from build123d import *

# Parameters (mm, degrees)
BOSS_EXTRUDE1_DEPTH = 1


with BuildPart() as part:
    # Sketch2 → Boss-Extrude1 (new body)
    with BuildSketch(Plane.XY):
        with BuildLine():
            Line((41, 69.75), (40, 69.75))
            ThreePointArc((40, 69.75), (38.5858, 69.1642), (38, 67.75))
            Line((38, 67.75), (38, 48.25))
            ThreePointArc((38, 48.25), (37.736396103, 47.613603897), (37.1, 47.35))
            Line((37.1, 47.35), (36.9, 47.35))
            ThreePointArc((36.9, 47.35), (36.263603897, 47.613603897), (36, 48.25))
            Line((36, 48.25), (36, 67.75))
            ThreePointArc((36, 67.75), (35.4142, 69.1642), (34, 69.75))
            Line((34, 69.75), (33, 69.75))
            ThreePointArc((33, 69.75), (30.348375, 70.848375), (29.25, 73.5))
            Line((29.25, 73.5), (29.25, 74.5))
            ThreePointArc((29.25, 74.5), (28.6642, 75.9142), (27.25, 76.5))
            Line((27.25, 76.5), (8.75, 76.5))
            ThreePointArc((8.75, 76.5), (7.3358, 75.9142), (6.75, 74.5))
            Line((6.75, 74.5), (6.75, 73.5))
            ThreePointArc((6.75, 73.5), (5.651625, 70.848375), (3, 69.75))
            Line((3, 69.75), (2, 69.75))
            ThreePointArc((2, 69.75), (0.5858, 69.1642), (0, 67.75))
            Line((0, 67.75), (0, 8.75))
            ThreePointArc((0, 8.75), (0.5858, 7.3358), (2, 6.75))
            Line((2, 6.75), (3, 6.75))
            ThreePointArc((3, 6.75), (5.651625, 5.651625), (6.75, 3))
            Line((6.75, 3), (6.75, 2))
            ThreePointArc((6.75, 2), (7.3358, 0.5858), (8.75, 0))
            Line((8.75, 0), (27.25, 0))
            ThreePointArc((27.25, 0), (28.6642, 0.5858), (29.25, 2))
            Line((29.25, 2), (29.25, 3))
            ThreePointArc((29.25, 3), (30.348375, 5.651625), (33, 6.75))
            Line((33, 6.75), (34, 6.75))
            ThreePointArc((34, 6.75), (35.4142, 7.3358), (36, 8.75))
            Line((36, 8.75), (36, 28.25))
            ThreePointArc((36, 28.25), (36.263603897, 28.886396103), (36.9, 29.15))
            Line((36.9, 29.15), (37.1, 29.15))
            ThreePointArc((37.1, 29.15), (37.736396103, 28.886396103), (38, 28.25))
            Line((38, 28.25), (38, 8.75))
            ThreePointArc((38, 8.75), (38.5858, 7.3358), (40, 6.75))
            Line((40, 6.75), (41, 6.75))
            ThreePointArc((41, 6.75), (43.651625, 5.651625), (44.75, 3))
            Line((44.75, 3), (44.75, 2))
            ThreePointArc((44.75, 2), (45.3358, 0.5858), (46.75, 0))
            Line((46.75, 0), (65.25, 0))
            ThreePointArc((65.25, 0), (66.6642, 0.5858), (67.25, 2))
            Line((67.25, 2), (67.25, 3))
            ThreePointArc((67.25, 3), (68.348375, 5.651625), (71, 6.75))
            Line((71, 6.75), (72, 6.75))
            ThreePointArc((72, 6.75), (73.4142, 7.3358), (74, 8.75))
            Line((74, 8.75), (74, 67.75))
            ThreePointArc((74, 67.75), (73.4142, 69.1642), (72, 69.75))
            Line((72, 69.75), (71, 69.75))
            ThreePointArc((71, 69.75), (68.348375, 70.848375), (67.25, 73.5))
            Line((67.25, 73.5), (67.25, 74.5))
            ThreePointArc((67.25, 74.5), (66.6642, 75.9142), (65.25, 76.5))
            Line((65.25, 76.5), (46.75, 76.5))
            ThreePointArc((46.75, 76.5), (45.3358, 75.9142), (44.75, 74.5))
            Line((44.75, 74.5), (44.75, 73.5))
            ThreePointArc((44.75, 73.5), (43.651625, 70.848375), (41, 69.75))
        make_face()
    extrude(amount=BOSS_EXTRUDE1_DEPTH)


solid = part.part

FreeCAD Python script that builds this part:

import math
import FreeCAD as App
import Part
import Sketcher

V = App.Vector
Q = App.Units.Quantity

doc = App.newDocument("Part")
params = doc.addObject("Spreadsheet::Sheet", "Params")
for row, (alias, value) in enumerate([
    ("sketch1_radius", "0.9 mm"),
    ("sketch1_width", "1 mm"),
    ("sketch1_height", "59 mm"),
    ("sketch1_width2", "0.2 mm"),
    ("sketch1_width3", "18.5 mm"),
    ("pad1_length", "1 mm"),
], start=1):
    params.set(f"A{row}", alias)
    params.set(f"B{row}", "=" + value)
    params.setAlias(f"B{row}", alias)

body = doc.addObject("PartDesign::Body", "Body")

sketch1 = body.newObject("Sketcher::SketchObject", "Sketch")
sketch1.AttachmentSupport = (doc.getObject("XY_Plane"), [""])
sketch1.MapMode = "FlatFace"
sketch1.addGeometry(Part.LineSegment(V(41, 69.75, 0), V(40, 69.75, 0)), False)
sketch1.addGeometry(Part.ArcOfCircle(Part.Circle(V(40, 67.75, 0), V(0, 0, 1), 2), math.radians(90), math.radians(180)), False)
sketch1.addGeometry(Part.LineSegment(V(38, 67.75, 0), V(38, 48.25, 0)), False)
sketch1.addGeometry(Part.ArcOfCircle(Part.Circle(V(37.1, 48.25, 0), V(0, 0, 1), 0.9), math.radians(-90), math.radians(0)), False)
sketch1.addGeometry(Part.LineSegment(V(37.1, 47.35, 0), V(36.9, 47.35, 0)), False)
sketch1.addGeometry(Part.ArcOfCircle(Part.Circle(V(36.9, 48.25, 0), V(0, 0, 1), 0.9), math.radians(180), math.radians(270)), False)
sketch1.addGeometry(Part.LineSegment(V(36, 48.25, 0), V(36, 67.75, 0)), False)
sketch1.addGeometry(Part.ArcOfCircle(Part.Circle(V(34, 67.75, 0), V(0, 0, 1), 2), math.radians(0), math.radians(90)), False)
sketch1.addGeometry(Part.LineSegment(V(34, 69.75, 0), V(33, 69.75, 0)), False)
sketch1.addGeometry(Part.ArcOfCircle(Part.Circle(V(33, 73.5, 0), V(0, 0, 1), 3.75), math.radians(-180), math.radians(-90)), False)
sketch1.addGeometry(Part.LineSegment(V(29.25, 73.5, 0), V(29.25, 74.5, 0)), False)
sketch1.addGeometry(Part.ArcOfCircle(Part.Circle(V(27.25, 74.5, 0), V(0, 0, 1), 2), math.radians(0), math.radians(90)), False)
sketch1.addGeometry(Part.LineSegment(V(27.25, 76.5, 0), V(8.75, 76.5, 0)), False)
sketch1.addGeometry(Part.ArcOfCircle(Part.Circle(V(8.75, 74.5, 0), V(0, 0, 1), 2), math.radians(90), math.radians(180)), False)
sketch1.addGeometry(Part.LineSegment(V(6.75, 74.5, 0), V(6.75, 73.5, 0)), False)
sketch1.addGeometry(Part.ArcOfCircle(Part.Circle(V(3, 73.5, 0), V(0, 0, 1), 3.75), math.radians(-90), math.radians(0)), False)
sketch1.addGeometry(Part.LineSegment(V(3, 69.75, 0), V(2, 69.75, 0)), False)
sketch1.addGeometry(Part.ArcOfCircle(Part.Circle(V(2, 67.75, 0), V(0, 0, 1), 2), math.radians(90), math.radians(180)), False)
sketch1.addGeometry(Part.LineSegment(V(0, 67.75, 0), V(0, 8.75, 0)), False)
sketch1.addGeometry(Part.ArcOfCircle(Part.Circle(V(2, 8.75, 0), V(0, 0, 1), 2), math.radians(-180), math.radians(-90)), False)
sketch1.addGeometry(Part.LineSegment(V(2, 6.75, 0), V(3, 6.75, 0)), False)
sketch1.addGeometry(Part.ArcOfCircle(Part.Circle(V(3, 3, 0), V(0, 0, 1), 3.75), math.radians(0), math.radians(90)), False)
sketch1.addGeometry(Part.LineSegment(V(6.75, 3, 0), V(6.75, 2, 0)), False)
sketch1.addGeometry(Part.ArcOfCircle(Part.Circle(V(8.75, 2, 0), V(0, 0, 1), 2), math.radians(-180), math.radians(-90)), False)
sketch1.addGeometry(Part.LineSegment(V(8.75, 0, 0), V(27.25, 0, 0)), False)
sketch1.addGeometry(Part.ArcOfCircle(Part.Circle(V(27.25, 2, 0), V(0, 0, 1), 2), math.radians(-90), math.radians(0)), False)
sketch1.addGeometry(Part.LineSegment(V(29.25, 2, 0), V(29.25, 3, 0)), False)
sketch1.addGeometry(Part.ArcOfCircle(Part.Circle(V(33, 3, 0), V(0, 0, 1), 3.75), math.radians(90), math.radians(180)), False)
sketch1.addGeometry(Part.LineSegment(V(33, 6.75, 0), V(34, 6.75, 0)), False)
sketch1.addGeometry(Part.ArcOfCircle(Part.Circle(V(34, 8.75, 0), V(0, 0, 1), 2), math.radians(-90), math.radians(0)), False)
sketch1.addGeometry(Part.LineSegment(V(36, 8.75, 0), V(36, 28.25, 0)), False)
sketch1.addGeometry(Part.ArcOfCircle(Part.Circle(V(36.9, 28.25, 0), V(0, 0, 1), 0.9), math.radians(90), math.radians(180)), False)
sketch1.addGeometry(Part.LineSegment(V(36.9, 29.15, 0), V(37.1, 29.15, 0)), False)
sketch1.addGeometry(Part.ArcOfCircle(Part.Circle(V(37.1, 28.25, 0), V(0, 0, 1), 0.9), math.radians(0), math.radians(90)), False)
sketch1.addGeometry(Part.LineSegment(V(38, 28.25, 0), V(38, 8.75, 0)), False)
sketch1.addGeometry(Part.ArcOfCircle(Part.Circle(V(40, 8.75, 0), V(0, 0, 1), 2), math.radians(-180), math.radians(-90)), False)
sketch1.addGeometry(Part.LineSegment(V(40, 6.75, 0), V(41, 6.75, 0)), False)
sketch1.addGeometry(Part.ArcOfCircle(Part.Circle(V(41, 3, 0), V(0, 0, 1), 3.75), math.radians(0), math.radians(90)), False)
sketch1.addGeometry(Part.LineSegment(V(44.75, 3, 0), V(44.75, 2, 0)), False)
sketch1.addGeometry(Part.ArcOfCircle(Part.Circle(V(46.75, 2, 0), V(0, 0, 1), 2), math.radians(-180), math.radians(-90)), False)
sketch1.addGeometry(Part.LineSegment(V(46.75, 0, 0), V(65.25, 0, 0)), False)
sketch1.addGeometry(Part.ArcOfCircle(Part.Circle(V(65.25, 2, 0), V(0, 0, 1), 2), math.radians(-90), math.radians(0)), False)
sketch1.addGeometry(Part.LineSegment(V(67.25, 2, 0), V(67.25, 3, 0)), False)
sketch1.addGeometry(Part.ArcOfCircle(Part.Circle(V(71, 3, 0), V(0, 0, 1), 3.75), math.radians(90), math.radians(180)), False)
sketch1.addGeometry(Part.LineSegment(V(71, 6.75, 0), V(72, 6.75, 0)), False)
sketch1.addGeometry(Part.ArcOfCircle(Part.Circle(V(72, 8.75, 0), V(0, 0, 1), 2), math.radians(-90), math.radians(0)), False)
sketch1.addGeometry(Part.LineSegment(V(74, 8.75, 0), V(74, 67.75, 0)), False)
sketch1.addGeometry(Part.ArcOfCircle(Part.Circle(V(72, 67.75, 0), V(0, 0, 1), 2), math.radians(0), math.radians(90)), False)
sketch1.addGeometry(Part.LineSegment(V(72, 69.75, 0), V(71, 69.75, 0)), False)
sketch1.addGeometry(Part.ArcOfCircle(Part.Circle(V(71, 73.5, 0), V(0, 0, 1), 3.75), math.radians(-180), math.radians(-90)), False)
sketch1.addGeometry(Part.LineSegment(V(67.25, 73.5, 0), V(67.25, 74.5, 0)), False)
sketch1.addGeometry(Part.ArcOfCircle(Part.Circle(V(65.25, 74.5, 0), V(0, 0, 1), 2), math.radians(0), math.radians(90)), False)
sketch1.addGeometry(Part.LineSegment(V(65.25, 76.5, 0), V(46.75, 76.5, 0)), False)
sketch1.addGeometry(Part.ArcOfCircle(Part.Circle(V(46.75, 74.5, 0), V(0, 0, 1), 2), math.radians(90), math.radians(180)), False)
sketch1.addGeometry(Part.LineSegment(V(44.75, 74.5, 0), V(44.75, 73.5, 0)), False)
sketch1.addGeometry(Part.ArcOfCircle(Part.Circle(V(41, 73.5, 0), V(0, 0, 1), 3.75), math.radians(-90), math.radians(0)), False)
sketch1.addConstraint(Sketcher.Constraint("Coincident", 0, 2, 1, 1))
sketch1.addConstraint(Sketcher.Constraint("Coincident", 1, 2, 2, 1))
sketch1.addConstraint(Sketcher.Constraint("Tangent", 2, 2, 3, 2))
sketch1.addConstraint(Sketcher.Constraint("Tangent", 3, 1, 4, 1))
sketch1.addConstraint(Sketcher.Constraint("Tangent", 4, 2, 5, 2))
sketch1.addConstraint(Sketcher.Constraint("Tangent", 5, 1, 6, 1))
sketch1.addConstraint(Sketcher.Constraint("Coincident", 6, 2, 7, 1))
sketch1.addConstraint(Sketcher.Constraint("Coincident", 7, 2, 8, 1))
sketch1.addConstraint(Sketcher.Constraint("Coincident", 8, 2, 9, 2))
sketch1.addConstraint(Sketcher.Constraint("Coincident", 9, 1, 10, 1))
sketch1.addConstraint(Sketcher.Constraint("Coincident", 10, 2, 11, 1))
sketch1.addConstraint(Sketcher.Constraint("Coincident", 11, 2, 12, 1))
sketch1.addConstraint(Sketcher.Constraint("Coincident", 12, 2, 13, 1))
sketch1.addConstraint(Sketcher.Constraint("Coincident", 13, 2, 14, 1))
sketch1.addConstraint(Sketcher.Constraint("Coincident", 14, 2, 15, 2))
sketch1.addConstraint(Sketcher.Constraint("Coincident", 15, 1, 16, 1))
sketch1.addConstraint(Sketcher.Constraint("Coincident", 16, 2, 17, 1))
sketch1.addConstraint(Sketcher.Constraint("Coincident", 17, 2, 18, 1))
sketch1.addConstraint(Sketcher.Constraint("Coincident", 18, 2, 19, 1))
sketch1.addConstraint(Sketcher.Constraint("Coincident", 19, 2, 20, 1))
sketch1.addConstraint(Sketcher.Constraint("Coincident", 20, 2, 21, 2))
sketch1.addConstraint(Sketcher.Constraint("Coincident", 21, 1, 22, 1))
sketch1.addConstraint(Sketcher.Constraint("Coincident", 22, 2, 23, 1))
sketch1.addConstraint(Sketcher.Constraint("Coincident", 23, 2, 24, 1))
sketch1.addConstraint(Sketcher.Constraint("Coincident", 24, 2, 25, 1))
sketch1.addConstraint(Sketcher.Constraint("Coincident", 25, 2, 26, 1))
sketch1.addConstraint(Sketcher.Constraint("Coincident", 26, 2, 27, 2))
sketch1.addConstraint(Sketcher.Constraint("Coincident", 27, 1, 28, 1))
sketch1.addConstraint(Sketcher.Constraint("Coincident", 28, 2, 29, 1))
sketch1.addConstraint(Sketcher.Constraint("Coincident", 29, 2, 30, 1))
sketch1.addConstraint(Sketcher.Constraint("Tangent", 30, 2, 31, 2))
sketch1.addConstraint(Sketcher.Constraint("Tangent", 31, 1, 32, 1))
sketch1.addConstraint(Sketcher.Constraint("Tangent", 32, 2, 33, 2))
sketch1.addConstraint(Sketcher.Constraint("Tangent", 33, 1, 34, 1))
sketch1.addConstraint(Sketcher.Constraint("Coincident", 34, 2, 35, 1))
sketch1.addConstraint(Sketcher.Constraint("Coincident", 35, 2, 36, 1))
sketch1.addConstraint(Sketcher.Constraint("Coincident", 36, 2, 37, 2))
sketch1.addConstraint(Sketcher.Constraint("Coincident", 37, 1, 38, 1))
sketch1.addConstraint(Sketcher.Constraint("Coincident", 38, 2, 39, 1))
sketch1.addConstraint(Sketcher.Constraint("Coincident", 39, 2, 40, 1))
sketch1.addConstraint(Sketcher.Constraint("Coincident", 40, 2, 41, 1))
sketch1.addConstraint(Sketcher.Constraint("Coincident", 41, 2, 42, 1))
sketch1.addConstraint(Sketcher.Constraint("Coincident", 42, 2, 43, 2))
sketch1.addConstraint(Sketcher.Constraint("Coincident", 43, 1, 44, 1))
sketch1.addConstraint(Sketcher.Constraint("Coincident", 44, 2, 45, 1))
sketch1.addConstraint(Sketcher.Constraint("Coincident", 45, 2, 46, 1))
sketch1.addConstraint(Sketcher.Constraint("Coincident", 46, 2, 47, 1))
sketch1.addConstraint(Sketcher.Constraint("Coincident", 47, 2, 48, 1))
sketch1.addConstraint(Sketcher.Constraint("Coincident", 48, 2, 49, 2))
sketch1.addConstraint(Sketcher.Constraint("Coincident", 49, 1, 50, 1))
sketch1.addConstraint(Sketcher.Constraint("Coincident", 50, 2, 51, 1))
sketch1.addConstraint(Sketcher.Constraint("Coincident", 51, 2, 52, 1))
sketch1.addConstraint(Sketcher.Constraint("Coincident", 52, 2, 53, 1))
sketch1.addConstraint(Sketcher.Constraint("Coincident", 53, 2, 54, 1))
sketch1.addConstraint(Sketcher.Constraint("Coincident", 54, 2, 55, 2))
sketch1.addConstraint(Sketcher.Constraint("Coincident", 55, 1, 0, 1))
sketch1.addConstraint(Sketcher.Constraint("Horizontal", 0))
sketch1.addConstraint(Sketcher.Constraint("Vertical", 2))
sketch1.addConstraint(Sketcher.Constraint("Horizontal", 4))
sketch1.addConstraint(Sketcher.Constraint("Vertical", 6))
sketch1.addConstraint(Sketcher.Constraint("Horizontal", 8))
sketch1.addConstraint(Sketcher.Constraint("Vertical", 10))
sketch1.addConstraint(Sketcher.Constraint("Horizontal", 12))
sketch1.addConstraint(Sketcher.Constraint("Vertical", 14))
sketch1.addConstraint(Sketcher.Constraint("Horizontal", 16))
sketch1.addConstraint(Sketcher.Constraint("Vertical", 18))
sketch1.addConstraint(Sketcher.Constraint("Horizontal", 20))
sketch1.addConstraint(Sketcher.Constraint("Vertical", 22))
sketch1.addConstraint(Sketcher.Constraint("Horizontal", 24))
sketch1.addConstraint(Sketcher.Constraint("Vertical", 26))
sketch1.addConstraint(Sketcher.Constraint("Horizontal", 28))
sketch1.addConstraint(Sketcher.Constraint("Vertical", 30))
sketch1.addConstraint(Sketcher.Constraint("Horizontal", 32))
sketch1.addConstraint(Sketcher.Constraint("Vertical", 34))
sketch1.addConstraint(Sketcher.Constraint("Horizontal", 36))
sketch1.addConstraint(Sketcher.Constraint("Vertical", 38))
sketch1.addConstraint(Sketcher.Constraint("Horizontal", 40))
sketch1.addConstraint(Sketcher.Constraint("Vertical", 42))
sketch1.addConstraint(Sketcher.Constraint("Horizontal", 44))
sketch1.addConstraint(Sketcher.Constraint("Vertical", 46))
sketch1.addConstraint(Sketcher.Constraint("Horizontal", 48))
sketch1.addConstraint(Sketcher.Constraint("Vertical", 50))
sketch1.addConstraint(Sketcher.Constraint("Horizontal", 52))
sketch1.addConstraint(Sketcher.Constraint("Vertical", 54))
sketch1.addConstraint(Sketcher.Constraint("Equal", 3, 5))
sketch1.addConstraint(Sketcher.Constraint("Equal", 1, 7))
sketch1.addConstraint(Sketcher.Constraint("Equal", 7, 11))
sketch1.addConstraint(Sketcher.Constraint("Equal", 11, 13))
sketch1.addConstraint(Sketcher.Constraint("Equal", 9, 15))
sketch1.addConstraint(Sketcher.Constraint("Equal", 13, 17))
sketch1.addConstraint(Sketcher.Constraint("Equal", 17, 19))
sketch1.addConstraint(Sketcher.Constraint("Equal", 15, 21))
sketch1.addConstraint(Sketcher.Constraint("Equal", 19, 23))
sketch1.addConstraint(Sketcher.Constraint("Equal", 23, 25))
sketch1.addConstraint(Sketcher.Constraint("Equal", 21, 27))
sketch1.addConstraint(Sketcher.Constraint("Equal", 25, 29))
sketch1.addConstraint(Sketcher.Constraint("Equal", 5, 31))
sketch1.addConstraint(Sketcher.Constraint("Equal", 31, 33))
sketch1.addConstraint(Sketcher.Constraint("Equal", 29, 35))
sketch1.addConstraint(Sketcher.Constraint("Equal", 27, 37))
sketch1.addConstraint(Sketcher.Constraint("Equal", 35, 39))
sketch1.addConstraint(Sketcher.Constraint("Equal", 39, 41))
sketch1.addConstraint(Sketcher.Constraint("Equal", 37, 43))
sketch1.addConstraint(Sketcher.Constraint("Equal", 41, 45))
sketch1.addConstraint(Sketcher.Constraint("Equal", 45, 47))
sketch1.addConstraint(Sketcher.Constraint("Equal", 43, 49))
sketch1.addConstraint(Sketcher.Constraint("Equal", 47, 51))
sketch1.addConstraint(Sketcher.Constraint("Equal", 51, 53))
sketch1.addConstraint(Sketcher.Constraint("Equal", 49, 55))
sketch1.addConstraint(Sketcher.Constraint("PointOnObject", 17, 2, -2))
sketch1.addConstraint(Sketcher.Constraint("PointOnObject", 23, 2, -1))
sketch1.addConstraint(Sketcher.Constraint("PointOnObject", 39, 2, -1))
sketch1.addConstraint(Sketcher.Constraint("Horizontal", 1, 3, 7, 3))
sketch1.addConstraint(Sketcher.Constraint("Horizontal", 9, 3, 15, 3))
sketch1.addConstraint(Sketcher.Constraint("Horizontal", 21, 3, 27, 3))
sketch1.addConstraint(Sketcher.Constraint("Horizontal", 29, 3, 35, 3))
sketch1.addConstraint(Sketcher.Constraint("Horizontal", 37, 3, 43, 3))
sketch1.addConstraint(Sketcher.Constraint("Horizontal", 17, 3, 47, 3))
sketch1.addConstraint(Sketcher.Constraint("Horizontal", 13, 3, 51, 3))
sketch1.addConstraint(Sketcher.Constraint("Horizontal", 1, 2, 6, 2))
sketch1.addConstraint(Sketcher.Constraint("Horizontal", 10, 2, 13, 2))
sketch1.addConstraint(Sketcher.Constraint("Horizontal", 9, 1, 14, 2))
sketch1.addConstraint(Sketcher.Constraint("Horizontal", 6, 2, 17, 2))
sketch1.addConstraint(Sketcher.Constraint("Horizontal", 22, 2, 25, 2))
sketch1.addConstraint(Sketcher.Constraint("Horizontal", 21, 1, 26, 2))
sketch1.addConstraint(Sketcher.Constraint("Horizontal", 18, 2, 29, 2))
sketch1.addConstraint(Sketcher.Constraint("Horizontal", 29, 2, 34, 2))
sketch1.addConstraint(Sketcher.Constraint("Horizontal", 26, 2, 37, 1))
sketch1.addConstraint(Sketcher.Constraint("Horizontal", 25, 2, 38, 2))
sketch1.addConstraint(Sketcher.Constraint("Horizontal", 38, 2, 41, 2))
sketch1.addConstraint(Sketcher.Constraint("Horizontal", 37, 1, 42, 2))
sketch1.addConstraint(Sketcher.Constraint("Horizontal", 34, 2, 45, 2))
sketch1.addConstraint(Sketcher.Constraint("Horizontal", 17, 2, 46, 2))
sketch1.addConstraint(Sketcher.Constraint("Horizontal", 14, 2, 49, 1))
sketch1.addConstraint(Sketcher.Constraint("Horizontal", 13, 2, 50, 2))
sketch1.addConstraint(Sketcher.Constraint("Horizontal", 50, 2, 53, 2))
sketch1.addConstraint(Sketcher.Constraint("Horizontal", 49, 1, 54, 2))
sketch1.addConstraint(Sketcher.Constraint("Vertical", 15, 3, 21, 3))
sketch1.addConstraint(Sketcher.Constraint("Vertical", 11, 3, 25, 3))
sketch1.addConstraint(Sketcher.Constraint("Vertical", 7, 3, 29, 3))
sketch1.addConstraint(Sketcher.Constraint("Vertical", 3, 3, 33, 3))
sketch1.addConstraint(Sketcher.Constraint("Vertical", 43, 3, 49, 3))
sketch1.addConstraint(Sketcher.Constraint("Vertical", 39, 3, 53, 3))
sketch1.addConstraint(Sketcher.Constraint("Vertical", 16, 2, 19, 2))
sketch1.addConstraint(Sketcher.Constraint("Vertical", 15, 1, 20, 2))
sketch1.addConstraint(Sketcher.Constraint("Vertical", 12, 2, 23, 2))
sketch1.addConstraint(Sketcher.Constraint("Vertical", 11, 2, 24, 2))
sketch1.addConstraint(Sketcher.Constraint("Vertical", 8, 2, 27, 1))
sketch1.addConstraint(Sketcher.Constraint("Vertical", 7, 2, 28, 2))
sketch1.addConstraint(Sketcher.Constraint("Vertical", 0, 2, 35, 2))
sketch1.addConstraint(Sketcher.Constraint("Vertical", 44, 2, 47, 2))
sketch1.addConstraint(Sketcher.Constraint("Vertical", 43, 1, 48, 2))
sketch1.addConstraint(Sketcher.Constraint("Vertical", 40, 2, 51, 2))
sketch1.addConstraint(Sketcher.Constraint("Vertical", 39, 2, 52, 2))
sketch1.addConstraint(Sketcher.Constraint("Vertical", 36, 2, 55, 1))
sketch1.addConstraint(Sketcher.Constraint("Equal", 0, 8))
sketch1.addConstraint(Sketcher.Constraint("Equal", 8, 16))
sketch1.addConstraint(Sketcher.Constraint("Equal", 24, 40))
sketch1.addConstraint(Sketcher.Constraint("Equal", 36, 44))
sketch1.addConstraint(Sketcher.Constraint("Equal", 48, 10))
sketch1.addConstraint(Sketcher.Constraint("Equal", 14, 22))
sketch1.addConstraint(Sketcher.Constraint("Equal", 6, 30))
sketch1.addConstraint(Sketcher.Constraint("Radius", 3, Q("0.9 mm")))
sketch1.addConstraint(Sketcher.Constraint("DistanceX", 0, 2, 0, 1, Q("1 mm")))
sketch1.addConstraint(Sketcher.Constraint("DistanceY", 18, 2, 18, 1, Q("59 mm")))
sketch1.addConstraint(Sketcher.Constraint("DistanceX", 4, 2, 4, 1, Q("0.2 mm")))
sketch1.addConstraint(Sketcher.Constraint("DistanceX", 12, 2, 12, 1, Q("18.5 mm")))
sketch1.addConstraint(Sketcher.Constraint("DistanceY", 2, 2, 2, 1, Q("19.5 mm")))
sketch1.addConstraint(Sketcher.Constraint("DistanceX", -1, 1, 0, 2, Q("40 mm")))
sketch1.addConstraint(Sketcher.Constraint("DistanceX", -1, 1, 1, 2, Q("38 mm")))
sketch1.addConstraint(Sketcher.Constraint("DistanceX", -1, 1, 7, 2, Q("34 mm")))
sketch1.addConstraint(Sketcher.Constraint("DistanceX", -1, 1, 15, 1, Q("3 mm")))
sketch1.addConstraint(Sketcher.Constraint("DistanceY", -1, 1, 21, 1, Q("3 mm")))
sketch1.addConstraint(Sketcher.Constraint("DistanceX", -1, 1, 43, 1, Q("71 mm")))
sketch1.addConstraint(Sketcher.Constraint("DistanceX", -1, 1, 45, 2, Q("74 mm")))
sketch1.addConstraint(Sketcher.Constraint("DistanceY", -1, 1, 9, 1, Q("73.5 mm")))
sketch1.addConstraint(Sketcher.Constraint("DistanceY", -1, 1, 11, 2, Q("76.5 mm")))
sketch1.addConstraint(Sketcher.Constraint("DistanceY", -1, 1, 3, 3, Q("48.25 mm")))
sketch1.addConstraint(Sketcher.Constraint("DistanceY", -1, 1, 0, 2, Q("69.75 mm")))
sketch1.addConstraint(Sketcher.Constraint("DistanceX", -1, 1, 9, 1, Q("29.25 mm")))
sketch1.addConstraint(Sketcher.Constraint("DistanceX", -1, 1, 11, 2, Q("27.25 mm")))
sketch1.addConstraint(Sketcher.Constraint("DistanceX", -1, 1, 13, 2, Q("6.75 mm")))
sketch1.addConstraint(Sketcher.Constraint("DistanceY", -1, 1, 19, 2, Q("6.75 mm")))
sketch1.addConstraint(Sketcher.Constraint("DistanceX", -1, 1, 37, 1, Q("44.75 mm")))
sketch1.addConstraint(Sketcher.Constraint("DistanceX", -1, 1, 39, 2, Q("46.75 mm")))
sketch1.addConstraint(Sketcher.Constraint("DistanceX", -1, 1, 41, 2, Q("67.25 mm")))
sketch1.addConstraint(Sketcher.Constraint("Radius", 1, Q("2.000046 mm")))
sketch1.addConstraint(Sketcher.Constraint("Radius", 9, Q("3.750087 mm")))
sketch1.setExpression("Constraints[162]", "Params.sketch1_radius")
sketch1.setExpression("Constraints[163]", "Params.sketch1_width")
sketch1.setExpression("Constraints[164]", "Params.sketch1_height")
sketch1.setExpression("Constraints[165]", "Params.sketch1_width2")
sketch1.setExpression("Constraints[166]", "Params.sketch1_width3")
pad1 = body.newObject("PartDesign::Pad", "Pad")
pad1.Profile = sketch1
pad1.setExpression("Length", "Params.pad1_length")

doc.recompute()
